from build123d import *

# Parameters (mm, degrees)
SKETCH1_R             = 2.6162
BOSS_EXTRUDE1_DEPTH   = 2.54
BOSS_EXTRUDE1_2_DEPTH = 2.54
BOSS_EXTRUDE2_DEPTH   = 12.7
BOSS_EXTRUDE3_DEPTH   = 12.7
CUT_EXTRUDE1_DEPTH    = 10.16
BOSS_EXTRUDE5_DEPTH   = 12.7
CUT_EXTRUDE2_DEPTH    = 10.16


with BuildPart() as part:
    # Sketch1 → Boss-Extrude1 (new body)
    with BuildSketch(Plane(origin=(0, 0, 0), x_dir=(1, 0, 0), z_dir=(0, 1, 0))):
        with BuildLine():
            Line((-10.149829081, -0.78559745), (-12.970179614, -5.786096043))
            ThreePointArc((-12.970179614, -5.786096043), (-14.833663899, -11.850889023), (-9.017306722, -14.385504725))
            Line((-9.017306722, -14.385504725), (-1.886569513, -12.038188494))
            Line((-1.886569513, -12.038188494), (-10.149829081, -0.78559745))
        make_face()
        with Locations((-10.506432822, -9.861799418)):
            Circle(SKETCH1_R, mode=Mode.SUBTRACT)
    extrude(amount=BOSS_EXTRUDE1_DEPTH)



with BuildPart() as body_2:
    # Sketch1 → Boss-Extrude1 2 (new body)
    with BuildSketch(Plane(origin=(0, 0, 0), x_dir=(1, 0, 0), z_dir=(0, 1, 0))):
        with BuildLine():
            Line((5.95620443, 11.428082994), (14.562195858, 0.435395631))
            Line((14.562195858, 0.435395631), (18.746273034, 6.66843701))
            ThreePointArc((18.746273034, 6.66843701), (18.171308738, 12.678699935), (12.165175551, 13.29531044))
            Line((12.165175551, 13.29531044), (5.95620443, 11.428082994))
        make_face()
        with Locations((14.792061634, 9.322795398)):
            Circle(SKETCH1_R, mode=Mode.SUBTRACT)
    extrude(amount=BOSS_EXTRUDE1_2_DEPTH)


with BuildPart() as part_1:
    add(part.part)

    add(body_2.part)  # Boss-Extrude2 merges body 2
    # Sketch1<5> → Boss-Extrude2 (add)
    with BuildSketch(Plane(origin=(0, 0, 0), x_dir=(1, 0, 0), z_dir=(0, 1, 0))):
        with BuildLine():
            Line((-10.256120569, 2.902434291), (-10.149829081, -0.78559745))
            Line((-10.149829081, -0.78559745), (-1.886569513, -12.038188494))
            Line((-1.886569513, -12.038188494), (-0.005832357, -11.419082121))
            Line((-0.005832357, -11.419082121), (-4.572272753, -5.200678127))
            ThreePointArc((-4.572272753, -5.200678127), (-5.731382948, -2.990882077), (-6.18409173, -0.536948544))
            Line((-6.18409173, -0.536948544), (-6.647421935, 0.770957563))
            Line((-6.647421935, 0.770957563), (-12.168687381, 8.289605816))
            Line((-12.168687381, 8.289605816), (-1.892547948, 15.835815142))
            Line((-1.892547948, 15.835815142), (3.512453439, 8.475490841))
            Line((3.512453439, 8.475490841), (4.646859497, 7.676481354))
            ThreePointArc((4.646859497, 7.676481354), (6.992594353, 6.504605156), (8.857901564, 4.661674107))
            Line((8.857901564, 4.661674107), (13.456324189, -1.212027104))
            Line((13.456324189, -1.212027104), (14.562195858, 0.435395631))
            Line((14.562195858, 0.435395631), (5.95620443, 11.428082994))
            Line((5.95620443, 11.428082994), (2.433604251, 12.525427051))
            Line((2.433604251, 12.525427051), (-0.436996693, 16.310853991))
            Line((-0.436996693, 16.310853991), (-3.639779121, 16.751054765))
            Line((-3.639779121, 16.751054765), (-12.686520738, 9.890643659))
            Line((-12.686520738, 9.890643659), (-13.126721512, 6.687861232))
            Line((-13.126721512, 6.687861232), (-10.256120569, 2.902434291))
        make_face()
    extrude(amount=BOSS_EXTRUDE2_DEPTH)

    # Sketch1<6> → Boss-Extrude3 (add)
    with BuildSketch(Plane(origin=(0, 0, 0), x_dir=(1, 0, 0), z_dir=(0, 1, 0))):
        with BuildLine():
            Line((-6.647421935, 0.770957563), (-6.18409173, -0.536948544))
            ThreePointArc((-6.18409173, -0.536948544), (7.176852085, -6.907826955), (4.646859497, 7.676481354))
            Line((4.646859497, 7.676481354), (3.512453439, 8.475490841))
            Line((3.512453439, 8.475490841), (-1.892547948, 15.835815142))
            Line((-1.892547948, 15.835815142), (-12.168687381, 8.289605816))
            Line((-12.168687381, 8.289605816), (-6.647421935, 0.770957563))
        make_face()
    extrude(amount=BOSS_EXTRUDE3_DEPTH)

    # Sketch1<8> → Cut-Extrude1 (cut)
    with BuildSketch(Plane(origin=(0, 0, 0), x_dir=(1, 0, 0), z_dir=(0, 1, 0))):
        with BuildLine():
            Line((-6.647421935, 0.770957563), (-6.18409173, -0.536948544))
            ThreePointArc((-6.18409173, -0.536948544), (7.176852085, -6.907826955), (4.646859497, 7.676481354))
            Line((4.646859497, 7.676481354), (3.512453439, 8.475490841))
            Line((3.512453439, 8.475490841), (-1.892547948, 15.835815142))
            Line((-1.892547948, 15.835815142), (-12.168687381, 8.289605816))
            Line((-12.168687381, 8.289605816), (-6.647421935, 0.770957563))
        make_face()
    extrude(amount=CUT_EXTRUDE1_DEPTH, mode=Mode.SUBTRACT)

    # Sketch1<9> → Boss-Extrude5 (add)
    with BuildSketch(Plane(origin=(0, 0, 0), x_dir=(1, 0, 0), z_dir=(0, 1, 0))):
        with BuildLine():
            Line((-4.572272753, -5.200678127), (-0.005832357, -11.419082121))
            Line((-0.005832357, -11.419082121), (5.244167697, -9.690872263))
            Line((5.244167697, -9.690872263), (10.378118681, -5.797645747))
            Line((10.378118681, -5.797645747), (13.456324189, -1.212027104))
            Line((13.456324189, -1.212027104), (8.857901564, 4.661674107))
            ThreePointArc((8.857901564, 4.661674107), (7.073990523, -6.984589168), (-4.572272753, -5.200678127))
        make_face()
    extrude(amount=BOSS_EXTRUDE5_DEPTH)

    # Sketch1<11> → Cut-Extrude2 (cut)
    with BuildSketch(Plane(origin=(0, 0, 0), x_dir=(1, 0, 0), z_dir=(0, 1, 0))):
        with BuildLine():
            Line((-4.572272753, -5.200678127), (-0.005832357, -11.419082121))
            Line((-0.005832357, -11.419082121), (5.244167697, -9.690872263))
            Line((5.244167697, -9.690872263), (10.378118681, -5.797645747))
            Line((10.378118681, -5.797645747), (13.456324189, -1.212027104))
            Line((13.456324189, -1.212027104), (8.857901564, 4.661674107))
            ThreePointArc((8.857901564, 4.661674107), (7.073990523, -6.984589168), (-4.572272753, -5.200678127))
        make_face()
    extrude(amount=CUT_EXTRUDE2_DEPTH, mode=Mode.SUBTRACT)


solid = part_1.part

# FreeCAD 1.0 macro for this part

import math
import FreeCAD as App
import Part
import Sketcher
from FreeCAD import Vector
Q = App.Units.Quantity

doc = App.newDocument("Part")
params = doc.addObject("Spreadsheet::Sheet", "Params")
for row, (alias, value) in enumerate([
    ("sketch1_diameter", "0.206 in"),
    ("sketch1_radius", "0.1875 in"),
    ("pad1_length", "0.1 in"),
    ("sketch2_diameter", "0.206 in"),
    ("sketch2_radius", "0.1875 in"),
    ("pad2_length", "0.1 in"),
    ("sketch3_radius", "0.328 in"),
    ("sketch3_length", "0.447 in"),
    ("pad3_length", "0.5 in"),
    ("sketch4_radius", "0.328 in"),
    ("pad4_length", "0.5 in"),
    ("sketch5_radius", "0.328 in"),
    ("pocket1_length", "0.4 in"),
    ("sketch6_radius", "0.328 in"),
    ("pad5_length", "0.5 in"),
    ("sketch7_radius", "0.328 in"),
    ("pocket2_length", "0.4 in"),
], start=1):
    params.set(f"A{row}", alias)
    params.set(f"B{row}", "=" + value)
    params.setAlias(f"B{row}", alias)

body = doc.addObject("PartDesign::Body", "Body")

# Sketch on XZ plane
sketch1 = body.newObject("Sketcher::SketchObject", "Sketch")
sketch1.AttachmentSupport = (doc.getObject("XZ_Plane"), [""])
sketch1.MapMode = "FlatFace"
sketch1.addGeometry([
    Part.LineSegment(Vector(-10.1, 0.8, 0), Vector(-13, 5.8, 0)),  # 0
    Part.ArcOfCircle(Part.Circle(Vector(-10.5, 9.9, 0), Vector(0, 0, 1), 4.8), math.radians(72), math.radians(239)),  # 1
    Part.LineSegment(Vector(-9, 14.4, 0), Vector(-1.9, 12, 0)),  # 2
    Part.LineSegment(Vector(-1.9, 12, 0), Vector(-10.1, 0.8, 0)),  # 3
    Part.Circle(Vector(-10.5, 9.9, 0), Vector(0, 0, 1), 2.6),  # 4
], False)
sketch1.addConstraint([
    Sketcher.Constraint("Coincident", 0, 2, 1, 2),
    Sketcher.Constraint("Tangent", 1, 1, 2, 1),
    Sketcher.Constraint("Coincident", 2, 2, 3, 1),
    Sketcher.Constraint("Coincident", 3, 2, 0, 1),
    Sketcher.Constraint("Coincident", 4, 3, 1, 3),
    Sketcher.Constraint("Diameter", 4, Q("0.206 in")),
    Sketcher.Constraint("Radius", 1, Q("0.1875 in")),
    Sketcher.Constraint("DistanceY", -1, 1, 1, 3, 9.861799),
    Sketcher.Constraint("DistanceY", 3, 2, 0, 2, 5.000499),
    Sketcher.Constraint("DistanceY", 3, 2, 1, 3, 9.076202),
    Sketcher.Constraint("Distance", 2, 7.50715),
    Sketcher.Constraint("Distance", 3, 13.96074),
    Sketcher.Constraint("DistanceX", 0, 2, -1, 1, 12.97018),
    Sketcher.Constraint("DistanceX", 2, 2, -1, 1, 1.88657),
])
sketch1.setExpression("Constraints[5]", "Params.sketch1_diameter")
sketch1.setExpression("Constraints[6]", "Params.sketch1_radius")
pad1 = body.newObject("PartDesign::Pad", "Pad")
pad1.Profile = sketch1
pad1.setExpression("Length", "Params.pad1_length")
pad1.Reversed = True
body2 = doc.addObject("PartDesign::Body", "Body001")

# Sketch on XZ plane
sketch2 = body2.newObject("Sketcher::SketchObject", "Sketch001")
sketch2.AttachmentSupport = (doc.getObject("XZ_Plane001"), [""])
sketch2.MapMode = "FlatFace"
sketch2.addGeometry([
    Part.LineSegment(Vector(5.956204, -11.428083, 0), Vector(14.562196, -0.435396, 0)),  # 0
    Part.LineSegment(Vector(14.562196, -0.435396, 0), Vector(18.746273, -6.668437, 0)),  # 1
    Part.ArcOfCircle(Part.Circle(Vector(14.792062, -9.322795, 0), Vector(0, 0, 1), 4.7625), math.radians(-123.475278), math.radians(33.872426)),  # 2
    Part.LineSegment(Vector(12.165176, -13.29531, 0), Vector(5.956204, -11.428083, 0)),  # 3
    Part.Circle(Vector(14.792062, -9.322795, 0), Vector(0, 0, 1), 2.6162),  # 4
], False)
sketch2.addConstraint([
    Sketcher.Constraint("Coincident", 0, 2, 1, 1),
    Sketcher.Constraint("Coincident", 1, 2, 2, 2),
    Sketcher.Constraint("Coincident", 2, 1, 3, 1),
    Sketcher.Constraint("Coincident", 3, 2, 0, 1),
    Sketcher.Constraint("Coincident", 4, 3, 2, 3),
    Sketcher.Constraint("Diameter", 4, Q("0.206 in")),
    Sketcher.Constraint("Radius", 2, Q("0.1875 in")),
    Sketcher.Constraint("DistanceY", 2, 3, 0, 2, 8.8874),
    Sketcher.Constraint("Distance", 0, 13.96074),
    Sketcher.Constraint("Distance", 1, 7.50715),
    Sketcher.Constraint("Distance", 3, 6.483661),
    Sketcher.Constraint("DistanceX", -1, 1, 2, 3, 14.792062),
    Sketcher.Constraint("DistanceY", 2, 1, -1, 1, 13.29531),
    Sketcher.Constraint("DistanceX", 2, 3, 1, 2, 3.954211),
    Sketcher.Constraint("DistanceX", 2, 1, 0, 2, 2.39702),
])
sketch2.setExpression("Constraints[5]", "Params.sketch2_diameter")
sketch2.setExpression("Constraints[6]", "Params.sketch2_radius")
pad2 = body2.newObject("PartDesign::Pad", "Pad001")
pad2.Profile = sketch2
pad2.setExpression("Length", "Params.pad2_length")
pad2.Reversed = True
body.AllowCompound = True
doc.recompute()

boolean = body.newObject("PartDesign::Boolean", "Boolean")
boolean.Type = "Fuse"
boolean.addObjects([body2])

# Sketch on XZ plane
sketch3 = body.newObject("Sketcher::SketchObject", "Sketch002")
sketch3.AttachmentSupport = (doc.getObject("XZ_Plane"), [""])
sketch3.MapMode = "FlatFace"
sketch3.addGeometry([
    Part.LineSegment(Vector(-10.3, -2.9, 0), Vector(-10.1, 0.8, 0)),  # 0
    Part.LineSegment(Vector(-10.1, 0.8, 0), Vector(-1.9, 12, 0)),  # 1
    Part.LineSegment(Vector(-1.9, 12, 0), Vector(0, 11.4, 0)),  # 2
    Part.LineSegment(Vector(0, 11.4, 0), Vector(-4.6, 5.2, 0)),  # 3
    Part.ArcOfCircle(Part.Circle(Vector(2.1, 0.3, 0), Vector(0, 0, 1), 8.3), math.radians(144), math.radians(178)),  # 4
    Part.LineSegment(Vector(-6.2, 0.5, 0), Vector(-6.6, -0.8, 0)),  # 5
    Part.LineSegment(Vector(-6.6, -0.8, 0), Vector(-12.2, -8.3, 0)),  # 6
    Part.LineSegment(Vector(-12.2, -8.3, 0), Vector(-1.9, -15.8, 0)),  # 7
    Part.LineSegment(Vector(-1.9, -15.8, 0), Vector(3.5, -8.5, 0)),  # 8
    Part.LineSegment(Vector(3.5, -8.5, 0), Vector(4.6, -7.7, 0)),  # 9
    Part.ArcOfCircle(Part.Circle(Vector(2.1, 0.3, 0), Vector(0, 0, 1), 8.3), math.radians(-73), math.radians(-36)),  # 10
    Part.LineSegment(Vector(8.9, -4.7, 0), Vector(13.5, 1.2, 0)),  # 11
    Part.LineSegment(Vector(13.5, 1.2, 0), Vector(14.6, -0.4, 0)),  # 12
    Part.LineSegment(Vector(14.6, -0.4, 0), Vector(6, -11.4, 0)),  # 13
    Part.LineSegment(Vector(6, -11.4, 0), Vector(2.4, -12.5, 0)),  # 14
    Part.LineSegment(Vector(2.4, -12.5, 0), Vector(-0.4, -16.3, 0)),  # 15
    Part.LineSegment(Vector(-0.4, -16.3, 0), Vector(-3.6, -16.8, 0)),  # 16
    Part.LineSegment(Vector(-3.6, -16.8, 0), Vector(-12.7, -9.9, 0)),  # 17
    Part.LineSegment(Vector(-12.7, -9.9, 0), Vector(-13.1, -6.7, 0)),  # 18
    Part.LineSegment(Vector(-13.1, -6.7, 0), Vector(-10.3, -2.9, 0)),  # 19
], False)
sketch3.addConstraint([
    Sketcher.Constraint("Coincident", 0, 2, 1, 1),
    Sketcher.Constraint("Coincident", 1, 2, 2, 1),
    Sketcher.Constraint("Coincident", 2, 2, 3, 1),
    Sketcher.Constraint("Tangent", 3, 2, 4, 1),
    Sketcher.Constraint("Coincident", 4, 2, 5, 1),
    Sketcher.Constraint("Coincident", 5, 2, 6, 1),
    Sketcher.Constraint("Coincident", 6, 2, 7, 1),
    Sketcher.Constraint("Coincident", 7, 2, 8, 1),
    Sketcher.Constraint("Coincident", 8, 2, 9, 1),
    Sketcher.Constraint("Coincident", 9, 2, 10, 1),
    Sketcher.Constraint("Coincident", 10, 2, 11, 1),
    Sketcher.Constraint("Coincident", 11, 2, 12, 1),
    Sketcher.Constraint("Coincident", 12, 2, 13, 1),
    Sketcher.Constraint("Coincident", 13, 2, 14, 1),
    Sketcher.Constraint("Coincident", 14, 2, 15, 1),
    Sketcher.Constraint("Coincident", 15, 2, 16, 1),
    Sketcher.Constraint("Coincident", 16, 2, 17, 1),
    Sketcher.Constraint("Coincident", 17, 2, 18, 1),
    Sketcher.Constraint("Coincident", 18, 2, 19, 1),
    Sketcher.Constraint("Coincident", 19, 2, 0, 1),
    Sketcher.Constraint("Coincident", 10, 3, 4, 3),
    Sketcher.Constraint("Equal", 4, 10),
    Sketcher.Constraint("Parallel", 1, 3),
    Sketcher.Constraint("Parallel", 3, 6),
    Sketcher.Constraint("Perpendicular", 6, 7),
    Sketcher.Constraint("Perpendicular", 7, 8),
    Sketcher.Constraint("Parallel", 11, 13),
    Sketcher.Constraint("Perpendicular", 15, 17),
    Sketcher.Constraint("Perpendicular", 16, 18),
    Sketcher.Constraint("Perpendicular", 17, 19),
    Sketcher.Constraint("Equal", 5, 9),
    Sketcher.Constraint("Equal", 1, 13),
    Sketcher.Constraint("Equal", 0, 14),
    Sketcher.Constraint("Equal", 16, 18),
    Sketcher.Constraint("Equal", 15, 19),
    Sketcher.Constraint("Radius", 4, Q("0.328 in")),
    Sketcher.Constraint("Distance", 17, Q("0.447 in")),
    Sketcher.Constraint("DistanceX", 18, 2, -1, 1, Q("0.5168001 in")),
    Sketcher.Constraint("DistanceX", -1, 1, 10, 2, 8.857902),
    Sketcher.Constraint("DistanceX", 6, 2, 10, 3, 14.311502),
    Sketcher.Constraint("DistanceX", 7, 2, 8, 2, 5.405001),
    Sketcher.Constraint("DistanceY", 10, 2, 11, 2, 5.873701),
    Sketcher.Constraint("DistanceY", 13, 2, 9, 2, 3.751602),
    Sketcher.Constraint("DistanceX", 14, 2, 13, 2, 3.5226),
    Sketcher.Constraint("DistanceX", 15, 2, 14, 2, 2.870601),
    Sketcher.Constraint("DistanceY", 16, 2, 15, 2, 0.440201),
    Sketcher.Constraint("DistanceX", 17, 2, 5, 2, 6.039099),
    Sketcher.Constraint("Distance", 1, 13.96074),
    Sketcher.Constraint("Distance", 3, 7.714981),
    Sketcher.Constraint("Distance", 5, 1.387549),
    Sketcher.Constraint("Distance", 15, 4.750769),
    Sketcher.Constraint("DistanceX", 0, 2, -1, 1, 10.149829),
    Sketcher.Constraint("DistanceX", 1, 2, -1, 1, 1.88657),
    Sketcher.Constraint("DistanceY", -1, 1, 1, 2, 12.038188),
    Sketcher.Constraint("DistanceY", -1, 1, 3, 2, 5.200678),
    Sketcher.Constraint("DistanceX", 4, 2, -1, 1, 6.184092),
    Sketcher.Constraint("DistanceY", -1, 1, 4, 2, 0.536949),
    Sketcher.Constraint("DistanceY", 8, 2, -1, 1, 8.475491),
    Sketcher.Constraint("DistanceY", 18, 2, -1, 1, 6.687861),
    Sketcher.Constraint("DistanceX", 4, 3, 11, 2, 11.31351),
])
sketch3.setExpression("Constraints[35]", "Params.sketch3_radius")
sketch3.setExpression("Constraints[36]", "Params.sketch3_length")
pad3 = body.newObject("PartDesign::Pad", "Pad002")
pad3.Profile = sketch3
pad3.setExpression("Length", "Params.pad3_length")
pad3.Reversed = True

# Sketch on XZ plane
sketch4 = body.newObject("Sketcher::SketchObject", "Sketch003")
sketch4.AttachmentSupport = (doc.getObject("XZ_Plane"), [""])
sketch4.MapMode = "FlatFace"
sketch4.addGeometry([
    Part.LineSegment(Vector(-6.6, -0.8, 0), Vector(-6.2, 0.5, 0)),  # 0
    Part.ArcOfCircle(Part.Circle(Vector(2.1, 0.3, 0), Vector(0, 0, 1), 8.3), math.radians(-73), math.radians(178)),  # 1
    Part.LineSegment(Vector(4.6, -7.7, 0), Vector(3.5, -8.5, 0)),  # 2
    Part.LineSegment(Vector(3.5, -8.5, 0), Vector(-1.9, -15.8, 0)),  # 3
    Part.LineSegment(Vector(-1.9, -15.8, 0), Vector(-12.2, -8.3, 0)),  # 4
    Part.LineSegment(Vector(-12.2, -8.3, 0), Vector(-6.6, -0.8, 0)),  # 5
], False)
sketch4.addConstraint([
    Sketcher.Constraint("Coincident", 0, 2, 1, 2),
    Sketcher.Constraint("Coincident", 1, 1, 2, 1),
    Sketcher.Constraint("Coincident", 2, 2, 3, 1),
    Sketcher.Constraint("Coincident", 3, 2, 4, 1),
    Sketcher.Constraint("Coincident", 4, 2, 5, 1),
    Sketcher.Constraint("Coincident", 5, 2, 0, 1),
    Sketcher.Constraint("Perpendicular", 3, 4),
    Sketcher.Constraint("Perpendicular", 4, 5),
    Sketcher.Constraint("Equal", 0, 2),
    Sketcher.Constraint("Radius", 1, Q("0.328 in")),
    Sketcher.Constraint("DistanceX", 3, 2, 2, 2, 5.405001),
    Sketcher.Constraint("DistanceX", 4, 2, 1, 3, 14.311502),
    Sketcher.Constraint("Distance", 0, 1.387549),
    Sketcher.Constraint("DistanceX", 0, 2, -1, 1, 6.184092),
    Sketcher.Constraint("DistanceY", -1, 1, 0, 2, 0.536949),
    Sketcher.Constraint("DistanceX", -1, 1, 1, 1, 4.646859),
    Sketcher.Constraint("DistanceY", 1, 1, -1, 1, 7.676481),
    Sketcher.Constraint("DistanceY", 2, 2, -1, 1, 8.475491),
    Sketcher.Constraint("DistanceX", 5, 2, -1, 1, 6.647422),
])
sketch4.setExpression("Constraints[9]", "Params.sketch4_radius")
pad4 = body.newObject("PartDesign::Pad", "Pad003")
pad4.Profile = sketch4
pad4.setExpression("Length", "Params.pad4_length")
pad4.Reversed = True

# Sketch on XZ plane
sketch5 = body.newObject("Sketcher::SketchObject", "Sketch004")
sketch5.AttachmentSupport = (doc.getObject("XZ_Plane"), [""])
sketch5.MapMode = "FlatFace"
sketch5.addGeometry([
    Part.LineSegment(Vector(-6.6, -0.8, 0), Vector(-6.2, 0.5, 0)),  # 0
    Part.ArcOfCircle(Part.Circle(Vector(2.1, 0.3, 0), Vector(0, 0, 1), 8.3), math.radians(-73), math.radians(178)),  # 1
    Part.LineSegment(Vector(4.6, -7.7, 0), Vector(3.5, -8.5, 0)),  # 2
    Part.LineSegment(Vector(3.5, -8.5, 0), Vector(-1.9, -15.8, 0)),  # 3
    Part.LineSegment(Vector(-1.9, -15.8, 0), Vector(-12.2, -8.3, 0)),  # 4
    Part.LineSegment(Vector(-12.2, -8.3, 0), Vector(-6.6, -0.8, 0)),  # 5
], False)
sketch5.addConstraint([
    Sketcher.Constraint("Coincident", 0, 2, 1, 2),
    Sketcher.Constraint("Coincident", 1, 1, 2, 1),
    Sketcher.Constraint("Coincident", 2, 2, 3, 1),
    Sketcher.Constraint("Coincident", 3, 2, 4, 1),
    Sketcher.Constraint("Coincident", 4, 2, 5, 1),
    Sketcher.Constraint("Coincident", 5, 2, 0, 1),
    Sketcher.Constraint("Perpendicular", 3, 4),
    Sketcher.Constraint("Perpendicular", 4, 5),
    Sketcher.Constraint("Equal", 0, 2),
    Sketcher.Constraint("Radius", 1, Q("0.328 in")),
    Sketcher.Constraint("DistanceX", 3, 2, 2, 2, 5.405001),
    Sketcher.Constraint("DistanceX", 4, 2, 1, 3, 14.311502),
    Sketcher.Constraint("Distance", 0, 1.387549),
    Sketcher.Constraint("DistanceX", 0, 2, -1, 1, 6.184092),
    Sketcher.Constraint("DistanceY", -1, 1, 0, 2, 0.536949),
    Sketcher.Constraint("DistanceX", -1, 1, 1, 1, 4.646859),
    Sketcher.Constraint("DistanceY", 1, 1, -1, 1, 7.676481),
    Sketcher.Constraint("DistanceY", 2, 2, -1, 1, 8.475491),
    Sketcher.Constraint("DistanceX", 5, 2, -1, 1, 6.647422),
])
sketch5.setExpression("Constraints[9]", "Params.sketch5_radius")
pocket1 = body.newObject("PartDesign::Pocket", "Pocket")
pocket1.Profile = sketch5
pocket1.setExpression("Length", "Params.pocket1_length")

# Sketch on XZ plane
sketch6 = body.newObject("Sketcher::SketchObject", "Sketch005")
sketch6.AttachmentSupport = (doc.getObject("XZ_Plane"), [""])
sketch6.MapMode = "FlatFace"
sketch6.addGeometry([
    Part.LineSegment(Vector(-5, 5, 0), Vector(0, 11, 0)),  # 0
    Part.LineSegment(Vector(0, 11, 0), Vector(5, 10, 0)),  # 1
    Part.LineSegment(Vector(5, 10, 0), Vector(10, 6, 0)),  # 2
    Part.LineSegment(Vector(10, 6, 0), Vector(13, 1, 0)),  # 3
    Part.LineSegment(Vector(13, 1, 0), Vector(9, -5, 0)),  # 4
    Part.ArcOfCircle(Part.Circle(Vector(2, 0, 0), Vector(0, 0, 1), 8), math.radians(-36), math.radians(144)),  # 5
], False)
sketch6.addConstraint([
    Sketcher.Constraint("Coincident", 0, 2, 1, 1),
    Sketcher.Constraint("Coincident", 1, 2, 2, 1),
    Sketcher.Constraint("Coincident", 2, 2, 3, 1),
    Sketcher.Constraint("Coincident", 3, 2, 4, 1),
    Sketcher.Constraint("Coincident", 4, 2, 5, 1),
    Sketcher.Constraint("Tangent", 5, 2, 0, 1),
    Sketcher.Constraint("Radius", 5, Q("0.328 in")),
    Sketcher.Constraint("DistanceX", -1, 1, 4, 2, 8.857902),
    Sketcher.Constraint("DistanceX", 0, 2, 1, 2, 5.25),
    Sketcher.Constraint("DistanceY", 4, 2, 3, 2, 5.873701),
    Sketcher.Constraint("Distance", 0, 7.714981),
    Sketcher.Constraint("DistanceX", -1, 1, 2, 2, 10.378119),
    Sketcher.Constraint("DistanceY", -1, 1, 5, 2, 5.200678),
    Sketcher.Constraint("DistanceY", 5, 3, 0, 2, 11.14958),
    Sketcher.Constraint("DistanceY", 1, 2, 0, 2, 1.72821),
    Sketcher.Constraint("DistanceX", 1, 2, 2, 2, 5.133951),
    Sketcher.Constraint("DistanceY", 3, 2, 2, 2, 4.585619),
    Sketcher.Constraint("DistanceX", 5, 3, 3, 2, 11.31351),
])
sketch6.setExpression("Constraints[6]", "Params.sketch6_radius")
pad5 = body.newObject("PartDesign::Pad", "Pad004")
pad5.Profile = sketch6
pad5.setExpression("Length", "Params.pad5_length")
pad5.Reversed = True

# Sketch on XZ plane
sketch7 = body.newObject("Sketcher::SketchObject", "Sketch006")
sketch7.AttachmentSupport = (doc.getObject("XZ_Plane"), [""])
sketch7.MapMode = "FlatFace"
sketch7.addGeometry([
    Part.LineSegment(Vector(-5, 5, 0), Vector(0, 11, 0)),  # 0
    Part.LineSegment(Vector(0, 11, 0), Vector(5, 10, 0)),  # 1
    Part.LineSegment(Vector(5, 10, 0), Vector(10, 6, 0)),  # 2
    Part.LineSegment(Vector(10, 6, 0), Vector(13, 1, 0)),  # 3
    Part.LineSegment(Vector(13, 1, 0), Vector(9, -5, 0)),  # 4
    Part.ArcOfCircle(Part.Circle(Vector(2, 0, 0), Vector(0, 0, 1), 8), math.radians(-36), math.radians(144)),  # 5
], False)
sketch7.addConstraint([
    Sketcher.Constraint("Coincident", 0, 2, 1, 1),
    Sketcher.Constraint("Coincident", 1, 2, 2, 1),
    Sketcher.Constraint("Coincident", 2, 2, 3, 1),
    Sketcher.Constraint("Coincident", 3, 2, 4, 1),
    Sketcher.Constraint("Coincident", 4, 2, 5, 1),
    Sketcher.Constraint("Tangent", 5, 2, 0, 1),
    Sketcher.Constraint("Radius", 5, Q("0.328 in")),
    Sketcher.Constraint("DistanceX", -1, 1, 4, 2, 8.857902),
    Sketcher.Constraint("DistanceX", 0, 2, 1, 2, 5.25),
    Sketcher.Constraint("DistanceY", 4, 2, 3, 2, 5.873701),
    Sketcher.Constraint("Distance", 0, 7.714981),
    Sketcher.Constraint("DistanceX", -1, 1, 2, 2, 10.378119),
    Sketcher.Constraint("DistanceY", -1, 1, 5, 2, 5.200678),
    Sketcher.Constraint("DistanceY", 5, 3, 0, 2, 11.14958),
    Sketcher.Constraint("DistanceY", 1, 2, 0, 2, 1.72821),
    Sketcher.Constraint("DistanceX", 1, 2, 2, 2, 5.133951),
    Sketcher.Constraint("DistanceY", 3, 2, 2, 2, 4.585619),
    Sketcher.Constraint("DistanceX", 5, 3, 3, 2, 11.31351),
])
sketch7.setExpression("Constraints[6]", "Params.sketch7_radius")
pocket2 = body.newObject("PartDesign::Pocket", "Pocket001")
pocket2.Profile = sketch7
pocket2.setExpression("Length", "Params.pocket2_length")

doc.recompute()
